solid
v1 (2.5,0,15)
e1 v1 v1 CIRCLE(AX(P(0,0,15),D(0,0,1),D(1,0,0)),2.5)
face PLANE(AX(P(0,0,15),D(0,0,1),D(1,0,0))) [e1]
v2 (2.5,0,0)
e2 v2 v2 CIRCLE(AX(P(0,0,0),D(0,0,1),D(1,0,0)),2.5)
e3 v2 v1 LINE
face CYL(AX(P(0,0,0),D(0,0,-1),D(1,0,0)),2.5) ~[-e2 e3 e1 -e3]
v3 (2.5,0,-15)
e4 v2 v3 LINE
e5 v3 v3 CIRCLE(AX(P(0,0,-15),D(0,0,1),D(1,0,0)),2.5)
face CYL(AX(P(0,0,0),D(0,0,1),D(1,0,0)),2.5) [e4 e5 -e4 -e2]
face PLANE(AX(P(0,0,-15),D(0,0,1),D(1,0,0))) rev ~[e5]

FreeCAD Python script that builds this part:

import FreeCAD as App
import Part
import Sketcher
from FreeCAD import Vector

doc = App.newDocument("Part")
body = doc.addObject("PartDesign::Body", "Body")

# Sketch on XY plane
sketch1 = body.newObject("Sketcher::SketchObject", "Sketch")
sketch1.AttachmentSupport = (doc.getObject("XY_Plane"), [""])
sketch1.MapMode = "FlatFace"
sketch1.addGeometry(Part.Circle(Vector(0, 0, 0), Vector(0, 0, 1), 2.5), False)
sketch1.addConstraint([
    Sketcher.Constraint("Coincident", 0, 3, -1, 1),
    Sketcher.Constraint("Diameter", 0, 5.0),
])
pad1 = body.newObject("PartDesign::Pad", "Pad")
pad1.Profile = sketch1
pad1.Length = 30
pad1.Midplane = True

doc.recompute()
